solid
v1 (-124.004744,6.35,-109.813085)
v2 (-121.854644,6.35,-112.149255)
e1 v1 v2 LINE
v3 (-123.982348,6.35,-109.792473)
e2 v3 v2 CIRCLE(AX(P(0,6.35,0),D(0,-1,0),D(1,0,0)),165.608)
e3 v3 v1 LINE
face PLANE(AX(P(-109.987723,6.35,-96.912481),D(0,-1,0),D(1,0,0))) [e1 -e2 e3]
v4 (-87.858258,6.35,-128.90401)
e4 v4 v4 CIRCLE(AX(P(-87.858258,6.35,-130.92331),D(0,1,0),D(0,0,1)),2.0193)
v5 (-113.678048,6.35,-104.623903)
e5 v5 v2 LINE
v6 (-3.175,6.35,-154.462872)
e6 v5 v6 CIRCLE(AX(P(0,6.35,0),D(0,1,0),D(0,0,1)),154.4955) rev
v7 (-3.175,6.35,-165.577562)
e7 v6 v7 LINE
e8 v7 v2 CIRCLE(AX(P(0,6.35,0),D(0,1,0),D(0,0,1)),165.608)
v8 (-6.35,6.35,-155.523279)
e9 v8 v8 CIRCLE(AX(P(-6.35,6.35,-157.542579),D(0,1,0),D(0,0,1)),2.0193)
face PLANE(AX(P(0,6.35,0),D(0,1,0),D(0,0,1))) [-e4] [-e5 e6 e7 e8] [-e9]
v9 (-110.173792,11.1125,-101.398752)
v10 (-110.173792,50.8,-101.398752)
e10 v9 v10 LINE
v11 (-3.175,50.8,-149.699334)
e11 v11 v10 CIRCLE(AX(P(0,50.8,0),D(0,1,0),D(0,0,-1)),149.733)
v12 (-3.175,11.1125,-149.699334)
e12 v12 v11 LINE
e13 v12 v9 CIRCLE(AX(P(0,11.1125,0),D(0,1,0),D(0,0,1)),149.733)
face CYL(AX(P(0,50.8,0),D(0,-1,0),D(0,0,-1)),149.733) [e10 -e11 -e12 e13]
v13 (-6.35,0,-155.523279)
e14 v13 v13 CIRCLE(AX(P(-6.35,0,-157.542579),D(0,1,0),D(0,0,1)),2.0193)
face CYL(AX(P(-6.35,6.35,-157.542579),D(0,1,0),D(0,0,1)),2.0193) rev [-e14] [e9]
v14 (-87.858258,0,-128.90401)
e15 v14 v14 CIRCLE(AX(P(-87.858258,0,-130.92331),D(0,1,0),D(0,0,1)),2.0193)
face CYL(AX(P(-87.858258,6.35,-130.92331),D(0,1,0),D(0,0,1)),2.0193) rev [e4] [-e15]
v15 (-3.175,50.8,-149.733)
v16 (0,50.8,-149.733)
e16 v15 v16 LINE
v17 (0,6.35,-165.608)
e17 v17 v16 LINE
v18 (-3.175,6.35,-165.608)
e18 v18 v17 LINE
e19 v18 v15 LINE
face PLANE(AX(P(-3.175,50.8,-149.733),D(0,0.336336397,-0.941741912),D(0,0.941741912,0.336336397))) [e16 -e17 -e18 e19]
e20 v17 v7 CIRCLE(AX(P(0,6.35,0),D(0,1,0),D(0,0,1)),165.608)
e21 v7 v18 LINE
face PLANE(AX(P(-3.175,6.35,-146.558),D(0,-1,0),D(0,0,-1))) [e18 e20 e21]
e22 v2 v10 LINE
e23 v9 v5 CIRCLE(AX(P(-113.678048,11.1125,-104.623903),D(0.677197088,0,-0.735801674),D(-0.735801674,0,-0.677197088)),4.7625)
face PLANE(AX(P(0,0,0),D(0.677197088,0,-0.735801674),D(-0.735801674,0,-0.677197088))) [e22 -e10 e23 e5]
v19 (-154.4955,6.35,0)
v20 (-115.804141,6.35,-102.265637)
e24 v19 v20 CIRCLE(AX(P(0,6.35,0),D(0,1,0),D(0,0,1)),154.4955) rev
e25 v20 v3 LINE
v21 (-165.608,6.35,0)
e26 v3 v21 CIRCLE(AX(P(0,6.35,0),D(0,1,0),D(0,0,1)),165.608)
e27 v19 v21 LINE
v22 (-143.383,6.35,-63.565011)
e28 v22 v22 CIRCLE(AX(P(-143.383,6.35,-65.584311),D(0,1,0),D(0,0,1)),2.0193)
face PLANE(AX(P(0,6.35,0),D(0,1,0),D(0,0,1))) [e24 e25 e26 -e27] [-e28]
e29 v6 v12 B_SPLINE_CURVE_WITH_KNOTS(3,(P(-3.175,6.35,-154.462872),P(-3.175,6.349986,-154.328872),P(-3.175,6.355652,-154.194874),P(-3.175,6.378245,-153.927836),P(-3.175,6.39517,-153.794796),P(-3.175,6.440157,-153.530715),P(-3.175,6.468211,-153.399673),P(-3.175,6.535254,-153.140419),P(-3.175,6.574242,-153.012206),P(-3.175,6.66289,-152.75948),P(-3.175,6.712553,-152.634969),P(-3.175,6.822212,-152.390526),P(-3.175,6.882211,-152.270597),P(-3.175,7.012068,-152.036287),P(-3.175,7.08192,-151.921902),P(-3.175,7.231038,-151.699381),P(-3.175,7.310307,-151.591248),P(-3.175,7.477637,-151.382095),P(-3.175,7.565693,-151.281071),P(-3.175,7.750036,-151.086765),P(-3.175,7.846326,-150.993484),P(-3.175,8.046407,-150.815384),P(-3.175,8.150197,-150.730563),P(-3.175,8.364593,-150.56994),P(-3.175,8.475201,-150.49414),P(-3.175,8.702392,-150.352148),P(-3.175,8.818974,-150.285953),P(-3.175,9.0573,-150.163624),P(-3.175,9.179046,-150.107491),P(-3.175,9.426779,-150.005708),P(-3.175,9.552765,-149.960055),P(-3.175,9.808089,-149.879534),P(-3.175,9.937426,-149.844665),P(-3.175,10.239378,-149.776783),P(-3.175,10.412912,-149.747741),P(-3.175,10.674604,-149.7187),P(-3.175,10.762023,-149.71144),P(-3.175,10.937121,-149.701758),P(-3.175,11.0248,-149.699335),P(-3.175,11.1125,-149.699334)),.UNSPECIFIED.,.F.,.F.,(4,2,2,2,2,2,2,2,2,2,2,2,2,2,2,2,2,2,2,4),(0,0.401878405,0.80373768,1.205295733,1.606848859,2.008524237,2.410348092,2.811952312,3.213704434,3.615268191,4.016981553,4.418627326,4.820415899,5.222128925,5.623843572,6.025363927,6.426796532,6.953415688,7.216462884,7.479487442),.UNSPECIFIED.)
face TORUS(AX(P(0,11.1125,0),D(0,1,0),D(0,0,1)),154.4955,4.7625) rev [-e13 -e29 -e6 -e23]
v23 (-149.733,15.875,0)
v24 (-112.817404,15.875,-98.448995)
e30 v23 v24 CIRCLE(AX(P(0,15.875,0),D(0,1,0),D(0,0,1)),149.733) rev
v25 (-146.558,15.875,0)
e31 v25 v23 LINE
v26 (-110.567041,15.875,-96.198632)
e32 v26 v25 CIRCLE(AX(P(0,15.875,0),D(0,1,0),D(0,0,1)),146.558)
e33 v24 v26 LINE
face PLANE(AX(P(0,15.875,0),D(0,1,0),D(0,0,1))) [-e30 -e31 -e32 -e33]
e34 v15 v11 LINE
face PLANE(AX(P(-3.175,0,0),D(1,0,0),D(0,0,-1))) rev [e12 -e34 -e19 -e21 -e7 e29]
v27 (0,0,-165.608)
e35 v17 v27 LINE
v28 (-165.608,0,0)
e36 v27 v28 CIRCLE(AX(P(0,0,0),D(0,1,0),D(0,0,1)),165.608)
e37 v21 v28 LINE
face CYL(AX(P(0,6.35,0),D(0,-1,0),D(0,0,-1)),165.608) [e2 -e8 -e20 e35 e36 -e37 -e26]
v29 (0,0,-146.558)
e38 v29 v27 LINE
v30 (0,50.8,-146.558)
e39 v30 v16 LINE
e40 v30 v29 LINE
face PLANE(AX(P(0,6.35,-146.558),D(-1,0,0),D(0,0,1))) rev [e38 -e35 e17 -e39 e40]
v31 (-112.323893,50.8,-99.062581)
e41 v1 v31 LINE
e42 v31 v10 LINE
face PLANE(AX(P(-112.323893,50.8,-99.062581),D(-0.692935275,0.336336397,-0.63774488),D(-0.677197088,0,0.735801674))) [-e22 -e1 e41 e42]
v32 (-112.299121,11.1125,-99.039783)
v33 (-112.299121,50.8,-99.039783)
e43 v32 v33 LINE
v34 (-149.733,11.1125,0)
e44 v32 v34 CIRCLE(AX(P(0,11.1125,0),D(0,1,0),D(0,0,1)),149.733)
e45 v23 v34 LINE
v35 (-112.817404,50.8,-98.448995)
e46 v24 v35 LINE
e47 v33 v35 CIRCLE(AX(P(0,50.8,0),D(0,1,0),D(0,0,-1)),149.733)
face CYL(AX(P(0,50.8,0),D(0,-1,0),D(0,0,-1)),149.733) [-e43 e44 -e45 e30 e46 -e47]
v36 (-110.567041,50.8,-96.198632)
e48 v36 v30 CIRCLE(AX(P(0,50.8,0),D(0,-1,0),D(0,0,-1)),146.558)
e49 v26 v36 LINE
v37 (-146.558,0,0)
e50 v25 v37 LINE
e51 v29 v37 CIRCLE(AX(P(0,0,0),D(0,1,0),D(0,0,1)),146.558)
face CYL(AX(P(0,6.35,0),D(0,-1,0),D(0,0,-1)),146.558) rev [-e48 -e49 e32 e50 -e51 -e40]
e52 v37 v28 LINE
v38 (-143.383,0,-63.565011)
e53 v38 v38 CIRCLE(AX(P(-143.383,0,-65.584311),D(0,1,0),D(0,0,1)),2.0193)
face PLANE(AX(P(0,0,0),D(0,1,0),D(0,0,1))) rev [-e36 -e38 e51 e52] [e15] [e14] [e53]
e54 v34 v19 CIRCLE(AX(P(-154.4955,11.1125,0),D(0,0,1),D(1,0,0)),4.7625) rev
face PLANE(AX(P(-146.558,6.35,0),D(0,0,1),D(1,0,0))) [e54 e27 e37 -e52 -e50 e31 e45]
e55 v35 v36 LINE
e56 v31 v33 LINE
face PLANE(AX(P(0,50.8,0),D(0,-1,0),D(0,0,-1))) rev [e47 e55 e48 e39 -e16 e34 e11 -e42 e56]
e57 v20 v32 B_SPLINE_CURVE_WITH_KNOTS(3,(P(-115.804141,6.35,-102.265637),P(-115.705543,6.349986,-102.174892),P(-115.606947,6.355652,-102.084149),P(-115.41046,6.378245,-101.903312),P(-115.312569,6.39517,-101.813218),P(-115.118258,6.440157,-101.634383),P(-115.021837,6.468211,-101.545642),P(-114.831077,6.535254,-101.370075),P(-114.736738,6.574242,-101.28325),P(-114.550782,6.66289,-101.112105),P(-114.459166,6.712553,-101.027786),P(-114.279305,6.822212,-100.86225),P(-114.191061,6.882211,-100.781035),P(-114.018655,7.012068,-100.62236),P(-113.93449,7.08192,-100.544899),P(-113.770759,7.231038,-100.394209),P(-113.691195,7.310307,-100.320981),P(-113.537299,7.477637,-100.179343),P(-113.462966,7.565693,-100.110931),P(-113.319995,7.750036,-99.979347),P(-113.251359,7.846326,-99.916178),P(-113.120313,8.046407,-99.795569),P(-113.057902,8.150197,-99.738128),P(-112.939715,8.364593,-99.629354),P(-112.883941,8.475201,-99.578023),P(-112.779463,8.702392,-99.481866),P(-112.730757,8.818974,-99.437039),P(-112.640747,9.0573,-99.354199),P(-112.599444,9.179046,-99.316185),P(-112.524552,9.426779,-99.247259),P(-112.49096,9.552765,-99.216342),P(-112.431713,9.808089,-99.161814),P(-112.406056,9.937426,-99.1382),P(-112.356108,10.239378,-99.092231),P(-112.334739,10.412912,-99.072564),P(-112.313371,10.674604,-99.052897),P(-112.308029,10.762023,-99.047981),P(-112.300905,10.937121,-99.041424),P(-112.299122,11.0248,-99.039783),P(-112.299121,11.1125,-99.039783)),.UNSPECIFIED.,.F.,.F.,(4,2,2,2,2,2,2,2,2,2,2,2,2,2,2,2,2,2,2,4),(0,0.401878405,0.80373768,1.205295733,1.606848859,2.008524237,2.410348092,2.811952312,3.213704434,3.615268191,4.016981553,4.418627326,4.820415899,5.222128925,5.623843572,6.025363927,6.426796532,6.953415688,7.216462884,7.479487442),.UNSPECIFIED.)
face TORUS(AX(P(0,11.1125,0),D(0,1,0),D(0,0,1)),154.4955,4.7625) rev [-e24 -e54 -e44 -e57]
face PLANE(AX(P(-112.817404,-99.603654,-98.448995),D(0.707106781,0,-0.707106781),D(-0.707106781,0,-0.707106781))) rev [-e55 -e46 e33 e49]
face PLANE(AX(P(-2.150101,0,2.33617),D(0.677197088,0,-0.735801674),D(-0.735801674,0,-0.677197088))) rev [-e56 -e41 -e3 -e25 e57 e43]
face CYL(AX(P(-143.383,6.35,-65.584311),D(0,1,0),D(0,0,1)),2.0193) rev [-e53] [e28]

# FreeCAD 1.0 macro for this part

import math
import FreeCAD as App
import Part
import Sketcher
Q = App.Units.Quantity


def edges_at(feature, points):
    """Names of the edges that pass closest to the given points."""
    edges = feature.Shape.Edges
    near = lambda p: min(range(len(edges)), key=lambda i: edges[i].distToShape(Part.Vertex(*p))[0])
    return sorted({f"Edge{near(p) + 1}" for p in points})


def add_polygon(sketch, points):
    """Adds a closed chain of lines whose ends are joined by coincident constraints."""
    first, n = sketch.GeometryCount, len(points)
    for a, b in zip(points, points[1:] + points[:1]):
        sketch.addGeometry(Part.LineSegment(App.Vector(*a, 0), App.Vector(*b, 0)), False)
    for i in range(n):
        sketch.addConstraint(Sketcher.Constraint("Coincident", first + i, 2, first + (i + 1) % n, 1))

doc = App.newDocument("Part")
params = doc.addObject("Spreadsheet::Sheet", "Params")
for row, (alias, value) in enumerate([
    ("sketch1_radius", "6.52 in"),
    ("sketch1_radius2", "5.77 in"),
    ("pad1_length", "0.25 in"),
    ("sketch2_radius", "5.77 in"),
    ("sketch2_radius2", "5.895 in"),
    ("pad2_length", "1.75 in"),
    ("sketch3_radius", "5.77 in"),
    ("sketch3_radius2", "5.895 in"),
    ("pocket1_length", "1 mm"),
    ("pocket1_length2", "1.375 in"),
    ("sketch4_diameter", "0.159 in"),
    ("hole_diameter", "0.159 in"),
    ("hole_depth", "0.25 in"),
    ("sketch5_width", "1.75 in"),
    ("sketch5_height", "0.75 in"),
    ("sketch5_height2", "0.125 in"),
    ("pad3_length", "0.125 in"),
    ("fillet_radius", "0.1875 in"),
], start=1):
    params.set(f"A{row}", alias)
    params.set(f"B{row}", "=" + value)
    params.setAlias(f"B{row}", alias)

body = doc.addObject("PartDesign::Body", "Body")

sketch1 = body.newObject("Sketcher::SketchObject", "Sketch")
sketch1.AttachmentSupport = (doc.getObject("XZ_Plane"), [""])
sketch1.MapMode = "FlatFace"
sketch1.addGeometry([
    Part.LineSegment(App.Vector(0, -147, 0), App.Vector(0, -166, 0)),
    Part.ArcOfCircle(Part.Circle(App.Vector(0, 0, 0), App.Vector(0, 0, 1), 166), math.radians(180), math.radians(270)),
    Part.LineSegment(App.Vector(-166, 0, 0), App.Vector(-147, 0, 0)),
    Part.ArcOfCircle(Part.Circle(App.Vector(0, 0, 0), App.Vector(0, 0, 1), 147), math.radians(180), math.radians(270)),
], False)
sketch1.addConstraint([
    Sketcher.Constraint("Coincident", 0, 2, 1, 2),
    Sketcher.Constraint("Coincident", 1, 1, 2, 1),
    Sketcher.Constraint("Coincident", 2, 2, 3, 1),
    Sketcher.Constraint("Coincident", 3, 2, 0, 1),
    Sketcher.Constraint("Vertical", 0),
    Sketcher.Constraint("Horizontal", 2),
    Sketcher.Constraint("Coincident", 1, 3, -1, 1),
    Sketcher.Constraint("Coincident", 3, 3, -1, 1),
    Sketcher.Constraint("PointOnObject", 0, 2, -2),
    Sketcher.Constraint("PointOnObject", 1, 1, -1),
    Sketcher.Constraint("Radius", 1, Q("6.52 in")),
    Sketcher.Constraint("Radius", 3, Q("5.77 in")),
])
sketch1.setExpression("Constraints[10]", "Params.sketch1_radius")
sketch1.setExpression("Constraints[11]", "Params.sketch1_radius2")
pad1 = body.newObject("PartDesign::Pad", "Pad")
pad1.Profile = sketch1
pad1.setExpression("Length", "Params.pad1_length")
pad1.Reversed = True

sketch2 = body.newObject("Sketcher::SketchObject", "Sketch001")
sketch2.AttachmentSupport = (doc.getObject("XZ_Plane"), [""])
sketch2.MapMode = "FlatFace"
sketch2.AttachmentOffset = App.Placement(App.Vector(0, 0, -0.25 * 25.4), App.Rotation())
sketch2.addGeometry([
    Part.LineSegment(App.Vector(-149.7, 0, 0), App.Vector(-146.6, 0, 0)),
    Part.ArcOfCircle(Part.Circle(App.Vector(0, 0, 0), App.Vector(0, 0, 1), 146.6), math.radians(180), math.radians(270)),
    Part.LineSegment(App.Vector(0, -146.6, 0), App.Vector(0, -149.7, 0)),
    Part.ArcOfCircle(Part.Circle(App.Vector(0, 0, 0), App.Vector(0, 0, 1), 149.7), math.radians(-180), math.radians(-90)),
], False)
sketch2.addConstraint([
    Sketcher.Constraint("Coincident", 0, 2, 1, 1),
    Sketcher.Constraint("Coincident", 1, 2, 2, 1),
    Sketcher.Constraint("Coincident", 2, 2, 3, 2),
    Sketcher.Constraint("Coincident", 3, 1, 0, 1),
    Sketcher.Constraint("Horizontal", 0),
    Sketcher.Constraint("Vertical", 2),
    Sketcher.Constraint("Coincident", 1, 3, -1, 1),
    Sketcher.Constraint("Coincident", 3, 3, -1, 1),
    Sketcher.Constraint("PointOnObject", 0, 2, -1),
    Sketcher.Constraint("PointOnObject", 1, 2, -2),
    Sketcher.Constraint("Radius", 1, Q("5.77 in")),
    Sketcher.Constraint("Radius", 3, Q("5.895 in")),
])
sketch2.setExpression("Constraints[10]", "Params.sketch2_radius")
sketch2.setExpression("Constraints[11]", "Params.sketch2_radius2")
pad2 = body.newObject("PartDesign::Pad", "Pad001")
pad2.Profile = sketch2
pad2.setExpression("Length", "Params.pad2_length")
pad2.Reversed = True

sketch3 = body.newObject("Sketcher::SketchObject", "Sketch002")
sketch3.AttachmentSupport = (doc.getObject("XZ_Plane"), [""])
sketch3.MapMode = "FlatFace"
sketch3.AttachmentOffset = App.Placement(App.Vector(0, 0, -2 * 25.4), App.Rotation())
sketch3.addGeometry([
    Part.LineSegment(App.Vector(-149.7, 0, 0), App.Vector(-146.6, 0, 0)),
    Part.ArcOfCircle(Part.Circle(App.Vector(0, 0, 0), App.Vector(0, 0, 1), 146.6), math.radians(180), math.radians(221)),
    Part.LineSegment(App.Vector(-110.6, -96.2, 0), App.Vector(-112.8, -98.4, 0)),
    Part.ArcOfCircle(Part.Circle(App.Vector(0, 0, 0), App.Vector(0, 0, 1), 149.7), math.radians(180), math.radians(221)),
], False)
sketch3.addConstraint([
    Sketcher.Constraint("Coincident", 0, 2, 1, 1),
    Sketcher.Constraint("Coincident", 1, 2, 2, 1),
    Sketcher.Constraint("Coincident", 2, 2, 3, 2),
    Sketcher.Constraint("Coincident", 3, 1, 0, 1),
    Sketcher.Constraint("Horizontal", 0),
    Sketcher.Constraint("Coincident", 1, 3, -1, 1),
    Sketcher.Constraint("Coincident", 3, 3, -1, 1),
    Sketcher.Constraint("PointOnObject", 0, 2, -1),
    Sketcher.Constraint("Radius", 1, Q("5.77 in")),
    Sketcher.Constraint("Angle", 2, Q("-135 deg")),
    Sketcher.Constraint("Radius", 3, Q("5.895 in")),
    Sketcher.Constraint("DistanceX", 1, 2, -1, 1, Q("110.567041 mm")),
])
sketch3.setExpression("Constraints[8]", "Params.sketch3_radius")
sketch3.setExpression("Constraints[10]", "Params.sketch3_radius2")
pocket1 = body.newObject("PartDesign::Pocket", "Pocket")
pocket1.Profile = sketch3
pocket1.Type = "TwoLengths"
pocket1.setExpression("Length", "Params.pocket1_length")
pocket1.setExpression("Length2", "Params.pocket1_length2")

sketch4 = body.newObject("Sketcher::SketchObject", "Sketch003")
sketch4.AttachmentSupport = (doc.getObject("XZ_Plane"), [""])
sketch4.MapMode = "FlatFace"
sketch4.AttachmentOffset = App.Placement(App.Vector(0, 0, -0.25 * 25.4), App.Rotation())
sketch4.addGeometry([
    Part.Circle(App.Vector(-6.3, -157.5, 0), App.Vector(0, 0, 1), 2),
    Part.Circle(App.Vector(-87.9, -130.9, 0), App.Vector(0, 0, 1), 2),
    Part.Circle(App.Vector(-143.4, -65.6, 0), App.Vector(0, 0, 1), 2),
], False)
sketch4.addConstraint([
    Sketcher.Constraint("Equal", 0, 1),
    Sketcher.Constraint("Equal", 1, 2),
    Sketcher.Constraint("Diameter", 0, Q("0.159 in")),
    Sketcher.Constraint("DistanceX", 0, 3, -1, 1, Q("0.25 in")),
    Sketcher.Constraint("DistanceX", 2, 3, -1, 1, Q("5.645 in")),
    Sketcher.Constraint("DistanceY", 1, 3, 2, 3, Q("65.338999 mm")),
    Sketcher.Constraint("DistanceY", 0, 3, -1, 1, Q("157.542579 mm")),
    Sketcher.Constraint("DistanceX", 1, 3, -1, 1, Q("87.858258 mm")),
    Sketcher.Constraint("DistanceY", 1, 3, -1, 1, Q("130.92331 mm")),
])
sketch4.setExpression("Constraints[2]", "Params.sketch4_diameter")
doc.recompute()
hole = body.newObject("PartDesign::Hole", "Hole")
hole.Profile = sketch4
hole.ThreadType = "None"
hole.setExpression("Diameter", "Params.hole_diameter")
hole.DepthType = "Dimension"
hole.setExpression("Depth", "Params.hole_depth")
hole.DrillPoint = "Flat"
hole.Reversed = True

sketch5 = body.newObject("Sketcher::SketchObject", "Sketch004")
sketch5.AttachmentSupport = (doc.getObject("YZ_Plane"), [""])
sketch5.MapMode = "FlatFace"
add_polygon(sketch5, [(6.3, -165.6), (50.8, -149.7), (50.8, -146.6), (6.3, -146.6)])
sketch5.addConstraint([
    Sketcher.Constraint("Vertical", 1),
    Sketcher.Constraint("Horizontal", 2),
    Sketcher.Constraint("Vertical", 3),
    Sketcher.Constraint("DistanceX", -1, 1, 0, 2, Q("2 in")),
    Sketcher.Constraint("DistanceX", 2, 2, 2, 1, Q("1.75 in")),
    Sketcher.Constraint("DistanceY", 3, 2, 3, 1, Q("0.75 in")),
    Sketcher.Constraint("DistanceY", 1, 1, 1, 2, Q("0.125 in")),
    Sketcher.Constraint("DistanceY", 1, 2, -1, 1, Q("5.77 in")),
])
sketch5.setExpression("Constraints[8]", "Params.sketch5_width")
sketch5.setExpression("Constraints[9]", "Params.sketch5_height")
sketch5.setExpression("Constraints[10]", "Params.sketch5_height2")
pad3 = body.newObject("PartDesign::Pad", "Pad002")
pad3.Profile = sketch5
pad3.setExpression("Length", "Params.pad3_length")
pad3.Reversed = True
doc.recompute()

polarpattern = body.newObject("PartDesign::PolarPattern", "PolarPattern")
polarpattern.Originals = [pad3]
polarpattern.Axis = (doc.getObject("Y_Axis"), [""])
polarpattern.Angle = 47.375
polarpattern.Occurrences = 2
body.Tip = polarpattern
doc.recompute()

fillet = body.newObject("PartDesign::Fillet", "Fillet")
fillet.Base = (polarpattern, edges_at(polarpattern, [(-61.605, 6.35, -136.473), (-140.062, 6.35, -52.939)]))
fillet.setExpression("Radius", "Params.fillet_radius")

doc.recompute()
